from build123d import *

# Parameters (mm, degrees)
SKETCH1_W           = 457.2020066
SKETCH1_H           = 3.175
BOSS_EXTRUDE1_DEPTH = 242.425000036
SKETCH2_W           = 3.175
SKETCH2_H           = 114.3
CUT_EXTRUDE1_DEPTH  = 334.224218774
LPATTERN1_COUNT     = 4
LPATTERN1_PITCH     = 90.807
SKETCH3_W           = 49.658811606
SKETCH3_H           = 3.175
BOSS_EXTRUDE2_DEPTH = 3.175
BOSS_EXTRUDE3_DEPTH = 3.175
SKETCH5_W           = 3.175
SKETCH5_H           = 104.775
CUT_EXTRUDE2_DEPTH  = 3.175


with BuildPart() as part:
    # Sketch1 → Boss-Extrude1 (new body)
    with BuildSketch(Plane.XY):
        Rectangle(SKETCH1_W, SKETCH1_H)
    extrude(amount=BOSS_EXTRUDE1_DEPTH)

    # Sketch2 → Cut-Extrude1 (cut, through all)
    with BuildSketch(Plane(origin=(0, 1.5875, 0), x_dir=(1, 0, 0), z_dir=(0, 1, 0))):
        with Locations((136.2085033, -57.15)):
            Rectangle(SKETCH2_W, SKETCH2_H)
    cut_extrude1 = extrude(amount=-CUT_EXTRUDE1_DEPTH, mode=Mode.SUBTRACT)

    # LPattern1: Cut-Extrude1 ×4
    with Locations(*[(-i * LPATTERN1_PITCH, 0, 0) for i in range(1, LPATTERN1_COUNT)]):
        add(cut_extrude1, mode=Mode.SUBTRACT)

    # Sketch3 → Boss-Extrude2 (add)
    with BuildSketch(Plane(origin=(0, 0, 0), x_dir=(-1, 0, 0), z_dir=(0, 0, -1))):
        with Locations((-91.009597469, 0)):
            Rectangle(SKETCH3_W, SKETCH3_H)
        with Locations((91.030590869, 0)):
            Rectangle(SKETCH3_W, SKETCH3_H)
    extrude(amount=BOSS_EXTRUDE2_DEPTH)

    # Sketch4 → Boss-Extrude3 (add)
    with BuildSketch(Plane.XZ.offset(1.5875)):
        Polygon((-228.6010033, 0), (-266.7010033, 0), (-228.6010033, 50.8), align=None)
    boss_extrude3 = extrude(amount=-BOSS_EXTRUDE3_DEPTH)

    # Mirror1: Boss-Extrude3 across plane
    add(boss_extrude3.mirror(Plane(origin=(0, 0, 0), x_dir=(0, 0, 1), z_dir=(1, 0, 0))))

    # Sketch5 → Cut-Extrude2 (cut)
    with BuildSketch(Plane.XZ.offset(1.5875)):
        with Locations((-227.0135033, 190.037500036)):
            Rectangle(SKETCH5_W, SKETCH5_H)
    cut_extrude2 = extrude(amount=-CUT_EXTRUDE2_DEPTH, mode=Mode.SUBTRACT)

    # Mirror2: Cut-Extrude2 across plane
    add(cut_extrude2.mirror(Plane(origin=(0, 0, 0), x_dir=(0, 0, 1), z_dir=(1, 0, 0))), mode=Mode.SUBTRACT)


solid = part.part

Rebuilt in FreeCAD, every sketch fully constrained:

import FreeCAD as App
import Part
import Sketcher
Q = App.Units.Quantity


def add_polygon(sketch, points):
    """Adds a closed chain of lines whose ends are joined by coincident constraints."""
    first, n = sketch.GeometryCount, len(points)
    for a, b in zip(points, points[1:] + points[:1]):
        sketch.addGeometry(Part.LineSegment(App.Vector(*a, 0), App.Vector(*b, 0)), False)
    for i in range(n):
        sketch.addConstraint(Sketcher.Constraint("Coincident", first + i, 2, first + (i + 1) % n, 1))

doc = App.newDocument("Part")
body = doc.addObject("PartDesign::Body", "Body")

# Sketch on XY plane
sketch1 = doc.addObject("Sketcher::SketchObject", "Sketch")
body.addObject(sketch1)
sketch1.AttachmentSupport = (doc.XY_Plane, [""])
sketch1.MapMode = "FlatFace"
add_polygon(sketch1, [(-228.601003, 1.5875), (-228.601003, -1.5875), (228.601003, -1.5875), (228.601003, 1.5875)])  # lines 0-3
sketch1.addConstraint([
    Sketcher.Constraint("Vertical", 0),
    Sketcher.Constraint("Horizontal", 1),
    Sketcher.Constraint("Vertical", 2),
    Sketcher.Constraint("Horizontal", 3),
    Sketcher.Constraint("Symmetric", 0, 2, 2, 2, -1, 1),
    Sketcher.Constraint("DistanceY", 0, 2, 0, 1, Q("0.125 in")),
    Sketcher.Constraint("DistanceX", 1, 1, 1, 2, Q("457.202007 mm")),
])
pad1 = doc.addObject("PartDesign::Pad", "Pad")
body.addObject(pad1)
pad1.Profile = sketch1
pad1.Length = 242.425

# Sketch on XZ plane
sketch2 = doc.addObject("Sketcher::SketchObject", "Sketch001")
body.addObject(sketch2)
sketch2.AttachmentSupport = (doc.XZ_Plane, [""])
sketch2.MapMode = "FlatFace"
sketch2.AttachmentOffset = App.Placement(App.Vector(0, 0, -0.0625 * 25.4), App.Rotation())
add_polygon(sketch2, [(134.621003, 0), (134.621003, 114.3), (137.796003, 114.3), (137.796003, 0)])  # lines 0-3
sketch2.addConstraint([
    Sketcher.Constraint("Vertical", 0),
    Sketcher.Constraint("Horizontal", 1),
    Sketcher.Constraint("Vertical", 2),
    Sketcher.Constraint("Horizontal", 3),
    Sketcher.Constraint("PointOnObject", 2, 2, -1),
    Sketcher.Constraint("DistanceY", 0, 1, 0, 2, Q("4.5 in")),
    Sketcher.Constraint("DistanceX", 1, 1, 1, 2, Q("0.125 in")),
    Sketcher.Constraint("DistanceX", -1, 1, 0, 2, Q("134.621003 mm")),
])
pocket1 = doc.addObject("PartDesign::Pocket", "Pocket")
body.addObject(pocket1)
pocket1.Profile = sketch2
pocket1.Type = "ThroughAll"
pocket1.Reversed = True
doc.recompute()

linearpattern = doc.addObject("PartDesign::LinearPattern", "LinearPattern")
body.addObject(linearpattern)
linearpattern.Originals = [pocket1]
linearpattern.Direction = (doc.X_Axis, [""])
linearpattern.Mode = "offset"
linearpattern.Offset = 90.807
linearpattern.Occurrences = 4
linearpattern.Reversed = True
body.Tip = linearpattern

# Sketch on XY plane
sketch3 = doc.addObject("Sketcher::SketchObject", "Sketch002")
body.addObject(sketch3)
sketch3.AttachmentSupport = (doc.XY_Plane, [""])
sketch3.MapMode = "FlatFace"
add_polygon(sketch3, [(115.839003, 1.5875), (115.839003, -1.5875), (66.180192, -1.5875), (66.180192, 1.5875)])  # lines 0-3
add_polygon(sketch3, [(-66.201185, 1.5875), (-66.201185, -1.5875), (-115.859997, -1.5875), (-115.859997, 1.5875)])  # lines 4-7
sketch3.addConstraint([
    Sketcher.Constraint("Vertical", 0),
    Sketcher.Constraint("Horizontal", 1),
    Sketcher.Constraint("Vertical", 2),
    Sketcher.Constraint("Horizontal", 3),
    Sketcher.Constraint("Vertical", 4),
    Sketcher.Constraint("Horizontal", 5),
    Sketcher.Constraint("Vertical", 6),
    Sketcher.Constraint("Horizontal", 7),
    Sketcher.Constraint("Horizontal", 1, 2, 4, 2),
    Sketcher.Constraint("Horizontal", 3, 2, 6, 2),
    Sketcher.Constraint("Equal", 3, 5),
    Sketcher.Constraint("DistanceY", 0, 2, 0, 1, Q("0.125 in")),
    Sketcher.Constraint("DistanceY", 0, 2, -1, 1, Q("0.0625 in")),
    Sketcher.Constraint("DistanceX", 1, 2, 1, 1, Q("49.658812 mm")),
    Sketcher.Constraint("DistanceX", 5, 2, 0, 2, Q("231.699 mm")),
    Sketcher.Constraint("DistanceX", -1, 1, 1, 2, Q("66.180192 mm")),
])
pad2 = doc.addObject("PartDesign::Pad", "Pad001")
body.addObject(pad2)
pad2.Profile = sketch3
pad2.Length = Q("0.125 in")
pad2.Reversed = True

# Sketch on XZ plane
sketch4 = doc.addObject("Sketcher::SketchObject", "Sketch003")
body.addObject(sketch4)
sketch4.AttachmentSupport = (doc.XZ_Plane, [""])
sketch4.MapMode = "FlatFace"
sketch4.AttachmentOffset = App.Placement(App.Vector(0, 0, 0.0625 * 25.4), App.Rotation())
add_polygon(sketch4, [(-266.701003, 0), (-228.601003, 0), (-228.601003, 50.8)])  # lines 0-2
sketch4.addConstraint([
    Sketcher.Constraint("Horizontal", 0),
    Sketcher.Constraint("Vertical", 1),
    Sketcher.Constraint("PointOnObject", 0, 2, -1),
    Sketcher.Constraint("DistanceY", 1, 1, 1, 2, Q("2 in")),
    Sketcher.Constraint("DistanceX", 0, 1, 0, 2, Q("1.5 in")),
    Sketcher.Constraint("DistanceX", 0, 2, -1, 1, Q("228.601003 mm")),
])
pad3 = doc.addObject("PartDesign::Pad", "Pad002")
body.addObject(pad3)
pad3.Profile = sketch4
pad3.Length = Q("0.125 in")
pad3.Reversed = True
doc.recompute()

mirrored = doc.addObject("PartDesign::Mirrored", "Mirrored")
body.addObject(mirrored)
mirrored.Originals = [pad3]
mirrored.MirrorPlane = (doc.YZ_Plane, [""])
body.Tip = mirrored

# Sketch on XZ plane
sketch5 = doc.addObject("Sketcher::SketchObject", "Sketch004")
body.addObject(sketch5)
sketch5.AttachmentSupport = (doc.XZ_Plane, [""])
sketch5.MapMode = "FlatFace"
sketch5.AttachmentOffset = App.Placement(App.Vector(0, 0, 0.0625 * 25.4), App.Rotation())
add_polygon(sketch5, [(-228.601003, 242.425), (-228.601003, 137.65), (-225.426003, 137.65), (-225.426003, 242.425)])  # lines 0-3
sketch5.addConstraint([
    Sketcher.Constraint("Vertical", 0),
    Sketcher.Constraint("Horizontal", 1),
    Sketcher.Constraint("Vertical", 2),
    Sketcher.Constraint("Horizontal", 3),
    Sketcher.Constraint("DistanceX", 1, 1, 1, 2, Q("0.125 in")),
    Sketcher.Constraint("DistanceY", 0, 2, 0, 1, Q("4.125 in")),
    Sketcher.Constraint("DistanceY", -1, 1, 0, 2, Q("137.65 mm")),
    Sketcher.Constraint("DistanceX", 0, 2, -1, 1, Q("228.601003 mm")),
])
pocket2 = doc.addObject("PartDesign::Pocket", "Pocket001")
body.addObject(pocket2)
pocket2.Profile = sketch5
pocket2.Length = Q("0.125 in")
doc.recompute()

mirrored2 = doc.addObject("PartDesign::Mirrored", "Mirrored001")
body.addObject(mirrored2)
mirrored2.Originals = [pocket2]
mirrored2.MirrorPlane = (doc.YZ_Plane, [""])
body.Tip = mirrored2

doc.recompute()
